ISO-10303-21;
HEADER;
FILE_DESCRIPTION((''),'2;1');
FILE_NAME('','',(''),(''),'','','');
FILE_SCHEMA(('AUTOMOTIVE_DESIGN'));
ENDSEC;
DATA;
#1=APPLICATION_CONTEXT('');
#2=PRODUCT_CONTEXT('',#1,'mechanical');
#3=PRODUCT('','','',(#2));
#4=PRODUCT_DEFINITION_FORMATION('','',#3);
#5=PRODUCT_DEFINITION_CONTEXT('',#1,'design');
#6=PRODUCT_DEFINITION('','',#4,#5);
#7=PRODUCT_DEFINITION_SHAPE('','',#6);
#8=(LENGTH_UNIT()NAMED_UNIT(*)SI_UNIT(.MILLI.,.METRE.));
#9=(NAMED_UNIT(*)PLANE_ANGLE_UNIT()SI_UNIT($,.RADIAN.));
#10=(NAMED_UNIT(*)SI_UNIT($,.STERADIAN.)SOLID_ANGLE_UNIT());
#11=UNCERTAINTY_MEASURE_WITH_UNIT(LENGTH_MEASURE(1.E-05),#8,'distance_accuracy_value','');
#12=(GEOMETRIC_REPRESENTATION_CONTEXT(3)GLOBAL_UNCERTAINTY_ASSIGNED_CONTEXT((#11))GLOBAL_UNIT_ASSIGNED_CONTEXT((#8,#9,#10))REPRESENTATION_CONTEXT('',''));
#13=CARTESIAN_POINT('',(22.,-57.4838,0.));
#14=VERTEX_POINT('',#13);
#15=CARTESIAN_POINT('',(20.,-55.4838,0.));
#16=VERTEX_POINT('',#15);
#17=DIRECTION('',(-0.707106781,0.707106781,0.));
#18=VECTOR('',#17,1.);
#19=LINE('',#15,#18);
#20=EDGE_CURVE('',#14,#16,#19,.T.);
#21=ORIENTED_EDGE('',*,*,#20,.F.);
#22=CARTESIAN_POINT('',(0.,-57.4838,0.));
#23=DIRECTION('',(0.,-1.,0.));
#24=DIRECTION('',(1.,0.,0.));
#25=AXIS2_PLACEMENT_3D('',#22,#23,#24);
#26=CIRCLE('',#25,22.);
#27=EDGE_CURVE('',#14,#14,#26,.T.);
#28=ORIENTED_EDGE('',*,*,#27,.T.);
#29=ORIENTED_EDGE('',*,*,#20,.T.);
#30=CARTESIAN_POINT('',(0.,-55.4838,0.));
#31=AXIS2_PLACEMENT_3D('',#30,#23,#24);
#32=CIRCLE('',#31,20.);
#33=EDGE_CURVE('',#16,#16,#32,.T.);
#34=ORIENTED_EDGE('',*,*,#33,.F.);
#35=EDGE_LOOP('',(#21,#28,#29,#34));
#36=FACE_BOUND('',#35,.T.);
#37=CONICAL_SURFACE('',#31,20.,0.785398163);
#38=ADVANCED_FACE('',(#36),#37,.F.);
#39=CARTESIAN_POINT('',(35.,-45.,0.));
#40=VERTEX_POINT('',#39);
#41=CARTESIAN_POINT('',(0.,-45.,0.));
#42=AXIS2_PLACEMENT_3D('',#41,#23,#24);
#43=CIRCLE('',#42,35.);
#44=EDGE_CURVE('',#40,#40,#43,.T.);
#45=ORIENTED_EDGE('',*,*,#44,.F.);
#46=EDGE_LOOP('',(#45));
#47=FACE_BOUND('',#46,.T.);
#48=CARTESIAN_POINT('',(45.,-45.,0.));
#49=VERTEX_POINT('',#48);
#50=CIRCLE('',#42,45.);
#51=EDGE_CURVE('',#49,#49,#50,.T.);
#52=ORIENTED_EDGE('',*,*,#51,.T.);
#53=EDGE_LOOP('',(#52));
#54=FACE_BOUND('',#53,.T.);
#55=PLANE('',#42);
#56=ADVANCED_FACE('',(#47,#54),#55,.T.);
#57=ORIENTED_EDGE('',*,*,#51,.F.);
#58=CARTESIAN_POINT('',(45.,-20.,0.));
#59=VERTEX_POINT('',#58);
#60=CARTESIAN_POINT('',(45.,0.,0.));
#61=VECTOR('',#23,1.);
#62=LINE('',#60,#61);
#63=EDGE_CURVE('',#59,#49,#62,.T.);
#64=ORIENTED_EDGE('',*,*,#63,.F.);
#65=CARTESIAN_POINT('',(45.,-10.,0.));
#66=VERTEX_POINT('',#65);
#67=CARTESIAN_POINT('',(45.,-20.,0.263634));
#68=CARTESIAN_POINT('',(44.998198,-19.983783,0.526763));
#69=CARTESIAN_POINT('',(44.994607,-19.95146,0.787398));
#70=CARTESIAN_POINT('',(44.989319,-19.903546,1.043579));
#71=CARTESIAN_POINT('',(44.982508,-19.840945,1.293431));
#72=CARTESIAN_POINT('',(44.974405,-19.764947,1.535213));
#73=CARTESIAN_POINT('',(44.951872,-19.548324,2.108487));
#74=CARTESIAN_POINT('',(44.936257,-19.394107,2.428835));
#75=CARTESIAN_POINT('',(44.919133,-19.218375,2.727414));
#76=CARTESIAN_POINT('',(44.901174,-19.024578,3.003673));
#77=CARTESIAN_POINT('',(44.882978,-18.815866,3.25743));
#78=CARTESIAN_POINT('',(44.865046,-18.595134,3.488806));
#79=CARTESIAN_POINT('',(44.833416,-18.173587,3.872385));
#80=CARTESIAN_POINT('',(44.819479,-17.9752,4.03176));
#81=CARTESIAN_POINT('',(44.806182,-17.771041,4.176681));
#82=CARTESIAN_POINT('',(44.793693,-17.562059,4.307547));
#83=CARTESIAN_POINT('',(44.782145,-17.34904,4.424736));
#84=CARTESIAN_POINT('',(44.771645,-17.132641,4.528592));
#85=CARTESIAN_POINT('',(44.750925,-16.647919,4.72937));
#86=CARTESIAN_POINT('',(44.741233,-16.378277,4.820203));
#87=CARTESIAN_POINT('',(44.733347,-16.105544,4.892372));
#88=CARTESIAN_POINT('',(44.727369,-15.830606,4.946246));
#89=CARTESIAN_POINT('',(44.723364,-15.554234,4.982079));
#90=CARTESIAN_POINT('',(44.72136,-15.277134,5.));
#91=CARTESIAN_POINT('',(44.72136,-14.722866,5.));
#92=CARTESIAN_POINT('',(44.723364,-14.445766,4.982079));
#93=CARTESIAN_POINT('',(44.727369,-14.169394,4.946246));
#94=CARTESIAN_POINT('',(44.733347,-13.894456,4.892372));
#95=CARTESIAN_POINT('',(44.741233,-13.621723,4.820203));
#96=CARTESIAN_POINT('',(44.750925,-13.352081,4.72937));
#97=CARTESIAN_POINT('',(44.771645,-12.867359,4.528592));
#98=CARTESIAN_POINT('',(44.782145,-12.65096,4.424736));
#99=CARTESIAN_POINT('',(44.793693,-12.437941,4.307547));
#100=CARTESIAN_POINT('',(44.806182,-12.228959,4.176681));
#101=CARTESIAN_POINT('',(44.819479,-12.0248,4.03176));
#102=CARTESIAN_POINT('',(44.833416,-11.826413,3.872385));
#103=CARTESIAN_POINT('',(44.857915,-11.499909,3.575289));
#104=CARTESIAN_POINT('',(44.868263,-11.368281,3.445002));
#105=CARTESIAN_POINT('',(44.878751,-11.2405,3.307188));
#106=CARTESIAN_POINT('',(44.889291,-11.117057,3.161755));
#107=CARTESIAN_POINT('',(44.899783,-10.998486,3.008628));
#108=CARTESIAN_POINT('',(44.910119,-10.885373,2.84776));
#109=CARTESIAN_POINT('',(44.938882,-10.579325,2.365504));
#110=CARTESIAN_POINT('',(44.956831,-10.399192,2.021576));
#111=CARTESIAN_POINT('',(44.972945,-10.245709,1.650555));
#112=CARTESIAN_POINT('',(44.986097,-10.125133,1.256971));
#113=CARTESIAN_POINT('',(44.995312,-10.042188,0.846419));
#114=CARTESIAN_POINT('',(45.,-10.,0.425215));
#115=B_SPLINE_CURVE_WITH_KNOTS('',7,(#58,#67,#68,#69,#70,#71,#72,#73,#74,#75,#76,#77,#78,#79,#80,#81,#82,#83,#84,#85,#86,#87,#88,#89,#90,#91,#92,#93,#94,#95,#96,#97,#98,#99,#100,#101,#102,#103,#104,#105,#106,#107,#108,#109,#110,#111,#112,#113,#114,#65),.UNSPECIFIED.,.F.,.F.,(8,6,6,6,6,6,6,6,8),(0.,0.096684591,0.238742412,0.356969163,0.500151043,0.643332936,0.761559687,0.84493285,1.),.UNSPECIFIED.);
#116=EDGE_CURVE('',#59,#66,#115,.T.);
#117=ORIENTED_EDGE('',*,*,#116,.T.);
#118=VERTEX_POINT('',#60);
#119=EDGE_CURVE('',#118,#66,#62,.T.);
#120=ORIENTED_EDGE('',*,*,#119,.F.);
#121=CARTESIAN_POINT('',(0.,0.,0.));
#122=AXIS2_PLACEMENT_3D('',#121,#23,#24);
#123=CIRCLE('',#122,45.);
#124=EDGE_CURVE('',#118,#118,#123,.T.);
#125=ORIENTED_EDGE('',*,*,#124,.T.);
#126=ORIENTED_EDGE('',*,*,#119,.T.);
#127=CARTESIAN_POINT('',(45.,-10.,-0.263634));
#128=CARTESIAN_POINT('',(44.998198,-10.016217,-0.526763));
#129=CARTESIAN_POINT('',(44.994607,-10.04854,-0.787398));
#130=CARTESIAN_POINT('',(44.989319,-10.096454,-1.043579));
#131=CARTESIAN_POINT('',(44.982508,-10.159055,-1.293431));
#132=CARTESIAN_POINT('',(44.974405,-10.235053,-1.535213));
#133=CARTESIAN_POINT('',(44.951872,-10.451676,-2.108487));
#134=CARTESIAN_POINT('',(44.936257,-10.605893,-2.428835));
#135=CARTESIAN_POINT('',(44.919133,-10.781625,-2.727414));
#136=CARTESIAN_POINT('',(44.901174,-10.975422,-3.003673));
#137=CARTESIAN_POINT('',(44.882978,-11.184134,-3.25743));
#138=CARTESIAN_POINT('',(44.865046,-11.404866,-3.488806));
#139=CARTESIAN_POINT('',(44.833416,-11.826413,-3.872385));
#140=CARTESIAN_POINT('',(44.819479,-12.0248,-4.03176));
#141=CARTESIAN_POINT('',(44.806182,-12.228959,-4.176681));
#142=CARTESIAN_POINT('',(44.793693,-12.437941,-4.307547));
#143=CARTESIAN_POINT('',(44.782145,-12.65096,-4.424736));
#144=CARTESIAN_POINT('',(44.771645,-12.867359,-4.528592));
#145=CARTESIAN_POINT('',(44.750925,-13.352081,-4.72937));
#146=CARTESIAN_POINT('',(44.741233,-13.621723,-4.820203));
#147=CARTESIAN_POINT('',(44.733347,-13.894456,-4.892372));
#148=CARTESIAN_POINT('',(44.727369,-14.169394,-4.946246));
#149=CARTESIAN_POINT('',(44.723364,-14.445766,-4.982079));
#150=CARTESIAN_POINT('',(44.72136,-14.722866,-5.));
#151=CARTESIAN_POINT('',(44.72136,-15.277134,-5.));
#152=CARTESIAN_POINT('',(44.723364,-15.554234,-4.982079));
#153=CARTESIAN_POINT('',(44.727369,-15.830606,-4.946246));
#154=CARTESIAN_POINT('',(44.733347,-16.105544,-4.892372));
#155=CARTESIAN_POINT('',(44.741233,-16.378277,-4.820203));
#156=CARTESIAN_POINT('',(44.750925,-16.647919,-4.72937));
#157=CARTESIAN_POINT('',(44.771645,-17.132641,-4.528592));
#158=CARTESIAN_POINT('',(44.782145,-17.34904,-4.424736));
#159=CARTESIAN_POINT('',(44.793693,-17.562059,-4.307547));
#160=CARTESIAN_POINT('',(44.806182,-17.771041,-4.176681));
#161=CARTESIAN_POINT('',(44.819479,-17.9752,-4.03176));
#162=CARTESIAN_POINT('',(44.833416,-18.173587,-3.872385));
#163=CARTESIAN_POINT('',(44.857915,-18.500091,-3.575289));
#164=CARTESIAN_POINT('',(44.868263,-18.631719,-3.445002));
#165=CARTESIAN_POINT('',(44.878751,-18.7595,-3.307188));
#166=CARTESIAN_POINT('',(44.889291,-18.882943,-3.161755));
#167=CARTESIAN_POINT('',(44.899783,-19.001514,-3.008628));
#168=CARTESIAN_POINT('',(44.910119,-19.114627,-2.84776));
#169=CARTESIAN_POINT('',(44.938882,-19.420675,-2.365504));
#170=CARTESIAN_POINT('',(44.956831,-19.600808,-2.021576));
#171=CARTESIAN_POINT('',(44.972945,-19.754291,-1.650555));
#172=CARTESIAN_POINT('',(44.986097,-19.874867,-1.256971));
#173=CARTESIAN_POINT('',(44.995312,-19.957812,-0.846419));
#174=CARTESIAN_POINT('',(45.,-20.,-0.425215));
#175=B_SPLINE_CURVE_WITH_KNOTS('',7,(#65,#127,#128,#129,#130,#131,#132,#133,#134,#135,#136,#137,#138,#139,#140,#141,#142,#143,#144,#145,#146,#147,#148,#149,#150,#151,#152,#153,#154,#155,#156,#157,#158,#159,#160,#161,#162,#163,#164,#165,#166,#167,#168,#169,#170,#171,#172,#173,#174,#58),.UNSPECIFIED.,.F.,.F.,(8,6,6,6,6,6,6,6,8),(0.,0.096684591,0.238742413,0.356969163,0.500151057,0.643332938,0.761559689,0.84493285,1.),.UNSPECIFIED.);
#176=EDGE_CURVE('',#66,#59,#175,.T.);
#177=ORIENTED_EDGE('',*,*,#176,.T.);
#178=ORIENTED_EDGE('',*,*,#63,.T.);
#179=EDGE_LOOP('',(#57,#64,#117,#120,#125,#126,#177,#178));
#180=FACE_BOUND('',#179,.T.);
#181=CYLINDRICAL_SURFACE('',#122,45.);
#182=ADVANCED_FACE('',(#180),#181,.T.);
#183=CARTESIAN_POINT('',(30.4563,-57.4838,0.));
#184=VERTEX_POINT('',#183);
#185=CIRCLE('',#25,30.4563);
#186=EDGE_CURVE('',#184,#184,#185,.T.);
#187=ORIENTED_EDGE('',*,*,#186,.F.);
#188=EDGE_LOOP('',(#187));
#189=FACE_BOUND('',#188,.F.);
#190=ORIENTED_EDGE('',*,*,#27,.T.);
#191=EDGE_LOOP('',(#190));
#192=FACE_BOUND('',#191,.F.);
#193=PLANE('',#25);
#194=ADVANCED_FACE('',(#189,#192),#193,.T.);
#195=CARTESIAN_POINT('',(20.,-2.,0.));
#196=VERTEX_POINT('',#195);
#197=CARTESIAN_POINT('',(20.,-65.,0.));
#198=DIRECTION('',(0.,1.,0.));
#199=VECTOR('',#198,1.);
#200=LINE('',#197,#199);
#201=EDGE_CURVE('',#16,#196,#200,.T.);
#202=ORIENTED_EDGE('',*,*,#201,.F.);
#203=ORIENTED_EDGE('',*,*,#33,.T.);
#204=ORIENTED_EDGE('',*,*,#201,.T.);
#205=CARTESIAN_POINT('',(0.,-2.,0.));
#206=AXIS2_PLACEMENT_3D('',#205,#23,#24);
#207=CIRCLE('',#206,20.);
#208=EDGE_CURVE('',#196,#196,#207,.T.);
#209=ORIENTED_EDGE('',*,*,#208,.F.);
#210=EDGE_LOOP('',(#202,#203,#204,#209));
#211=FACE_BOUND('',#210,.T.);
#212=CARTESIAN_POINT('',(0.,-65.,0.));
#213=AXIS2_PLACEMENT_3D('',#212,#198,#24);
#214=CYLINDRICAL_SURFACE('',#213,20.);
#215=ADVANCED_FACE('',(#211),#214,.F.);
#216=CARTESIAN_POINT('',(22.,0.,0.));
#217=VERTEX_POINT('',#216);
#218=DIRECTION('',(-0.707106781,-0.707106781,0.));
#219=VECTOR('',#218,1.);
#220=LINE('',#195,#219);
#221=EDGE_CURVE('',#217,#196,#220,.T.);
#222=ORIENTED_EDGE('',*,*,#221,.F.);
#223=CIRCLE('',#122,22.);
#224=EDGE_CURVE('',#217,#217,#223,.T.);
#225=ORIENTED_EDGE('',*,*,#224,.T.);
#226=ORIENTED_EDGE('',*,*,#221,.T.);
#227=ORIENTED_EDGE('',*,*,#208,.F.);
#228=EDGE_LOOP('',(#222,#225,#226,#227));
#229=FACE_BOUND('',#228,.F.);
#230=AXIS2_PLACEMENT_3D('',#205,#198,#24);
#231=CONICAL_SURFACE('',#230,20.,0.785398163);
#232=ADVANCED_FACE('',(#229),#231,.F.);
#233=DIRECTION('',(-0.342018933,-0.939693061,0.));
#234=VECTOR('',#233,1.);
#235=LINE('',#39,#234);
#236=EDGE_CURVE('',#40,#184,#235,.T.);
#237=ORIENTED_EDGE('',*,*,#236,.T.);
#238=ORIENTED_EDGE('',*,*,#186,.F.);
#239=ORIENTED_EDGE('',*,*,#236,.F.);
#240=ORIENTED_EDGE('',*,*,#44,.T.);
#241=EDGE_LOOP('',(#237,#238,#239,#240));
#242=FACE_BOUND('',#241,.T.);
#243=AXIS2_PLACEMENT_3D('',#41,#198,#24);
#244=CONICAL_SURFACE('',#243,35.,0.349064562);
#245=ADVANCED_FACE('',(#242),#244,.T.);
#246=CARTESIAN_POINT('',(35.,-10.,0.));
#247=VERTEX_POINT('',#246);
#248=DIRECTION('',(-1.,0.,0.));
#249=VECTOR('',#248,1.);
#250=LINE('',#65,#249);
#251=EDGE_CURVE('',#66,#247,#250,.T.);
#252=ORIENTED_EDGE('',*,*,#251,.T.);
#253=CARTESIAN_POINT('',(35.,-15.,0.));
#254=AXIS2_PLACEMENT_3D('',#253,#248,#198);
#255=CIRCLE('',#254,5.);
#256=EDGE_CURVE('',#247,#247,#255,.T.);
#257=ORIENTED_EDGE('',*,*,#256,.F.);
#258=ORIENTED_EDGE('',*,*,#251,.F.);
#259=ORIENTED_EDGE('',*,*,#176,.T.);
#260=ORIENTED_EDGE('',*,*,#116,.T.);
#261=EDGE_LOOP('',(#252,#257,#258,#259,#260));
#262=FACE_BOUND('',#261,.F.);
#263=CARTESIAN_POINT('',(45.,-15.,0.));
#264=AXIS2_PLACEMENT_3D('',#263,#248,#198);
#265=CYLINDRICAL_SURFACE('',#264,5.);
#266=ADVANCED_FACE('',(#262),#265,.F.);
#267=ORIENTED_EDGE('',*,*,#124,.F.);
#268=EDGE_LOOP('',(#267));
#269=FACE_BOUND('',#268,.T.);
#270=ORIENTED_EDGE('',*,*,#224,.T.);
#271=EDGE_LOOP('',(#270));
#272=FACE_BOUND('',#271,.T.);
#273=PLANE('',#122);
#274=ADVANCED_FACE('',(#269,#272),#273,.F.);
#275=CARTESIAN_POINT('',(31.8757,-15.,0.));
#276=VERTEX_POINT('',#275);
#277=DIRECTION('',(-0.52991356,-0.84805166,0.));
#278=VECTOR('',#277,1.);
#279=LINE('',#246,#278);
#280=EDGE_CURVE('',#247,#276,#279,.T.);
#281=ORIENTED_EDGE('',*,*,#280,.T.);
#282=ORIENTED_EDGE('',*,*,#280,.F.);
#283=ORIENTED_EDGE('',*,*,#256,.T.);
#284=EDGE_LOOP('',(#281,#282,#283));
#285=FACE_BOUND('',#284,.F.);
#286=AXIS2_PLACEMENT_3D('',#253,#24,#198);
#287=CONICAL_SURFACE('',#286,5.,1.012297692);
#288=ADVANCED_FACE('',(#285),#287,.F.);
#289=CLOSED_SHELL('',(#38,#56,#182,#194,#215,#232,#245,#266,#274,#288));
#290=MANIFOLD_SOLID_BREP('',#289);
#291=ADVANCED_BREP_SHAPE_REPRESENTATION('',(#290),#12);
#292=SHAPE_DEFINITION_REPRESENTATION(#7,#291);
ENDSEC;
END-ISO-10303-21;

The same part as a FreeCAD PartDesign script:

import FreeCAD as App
import Part
import Sketcher

V = App.Vector
Q = App.Units.Quantity


def edges_at(feature, points):
    """Names of the edges that pass closest to the given points."""
    edges = feature.Shape.Edges
    near = lambda p: min(range(len(edges)), key=lambda i: edges[i].distToShape(Part.Vertex(*p))[0])
    return sorted({f"Edge{near(p) + 1}" for p in points})


def add_polygon(sketch, points):
    """Adds a closed chain of lines whose ends are joined by coincident constraints."""
    first, n = sketch.GeometryCount, len(points)
    for a, b in zip(points, points[1:] + points[:1]):
        sketch.addGeometry(Part.LineSegment(App.Vector(*a, 0), App.Vector(*b, 0)), False)
    for i in range(n):
        sketch.addConstraint(Sketcher.Constraint("Coincident", first + i, 2, first + (i + 1) % n, 1))

doc = App.newDocument("Part")
params = doc.addObject("Spreadsheet::Sheet", "Params")
for row, (alias, value) in enumerate([
    ("sketch1_width", "10 mm"),
    ("sketch1_height", "45 mm"),
    ("revolution_angle", "360 deg"),
    ("chamfer_size", "2 mm"),
    ("sketch2_width", "10 mm"),
    ("sketch2_height", "5 mm"),
    ("groove_angle", "360 deg"),
], start=1):
    params.set(f"A{row}", alias)
    params.set(f"B{row}", "=" + value)
    params.setAlias(f"B{row}", alias)

body = doc.addObject("PartDesign::Body", "Body")

# Sketch on XY plane
sketch1 = body.newObject("Sketcher::SketchObject", "Sketch")
sketch1.AttachmentSupport = (doc.getObject("XY_Plane"), [""])
sketch1.MapMode = "FlatFace"
add_polygon(sketch1, [(45, 0), (20, 0), (20, -57.4838), (30.456288, -57.483796), (35, -45), (45, -45)])  # lines 0-5
sketch1.addConstraint([
    Sketcher.Constraint("Horizontal", 0),
    Sketcher.Constraint("Vertical", 1),
    Sketcher.Constraint("Horizontal", 2),
    Sketcher.Constraint("Horizontal", 4),
    Sketcher.Constraint("Vertical", 5),
    Sketcher.Constraint("PointOnObject", 0, 2, -1),
    Sketcher.Constraint("DistanceX", 4, 1, 4, 2, Q("10 mm")),
    Sketcher.Constraint("DistanceY", 5, 1, 5, 2, Q("45 mm")),
    Sketcher.Constraint("DistanceX", -1, 1, 0, 2, Q("20 mm")),
    Sketcher.Constraint("DistanceX", -1, 1, 4, 2, Q("45 mm")),
    Sketcher.Constraint("Angle", 3, Q("70 deg")),
    Sketcher.Constraint("Distance", 3, Q("13.285 mm")),
])
sketch1.setExpression("Constraints[12]", "Params.sketch1_width")
sketch1.setExpression("Constraints[13]", "Params.sketch1_height")
revolution = body.newObject("PartDesign::Revolution", "Revolution")
revolution.Profile = sketch1
revolution.ReferenceAxis = (sketch1, ["V_Axis"])
revolution.setExpression("Angle", "Params.revolution_angle")
doc.recompute()

chamfer = body.newObject("PartDesign::Chamfer", "Chamfer")
chamfer.Base = (revolution, edges_at(revolution, [(-20, 0, 0), (-20, -57.484, 0)]))
chamfer.setExpression("Size", "Params.chamfer_size")

# Sketch on XY plane
sketch2 = body.newObject("Sketcher::SketchObject", "Sketch001")
sketch2.AttachmentSupport = (doc.getObject("XY_Plane"), [""])
sketch2.MapMode = "FlatFace"
add_polygon(sketch2, [(45, -15), (45, -10), (35, -10), (31.8757, -15)])  # lines 0-3
sketch2.addGeometry(Part.LineSegment(V(45, -15, 0), V(31.8757, -15, 0)), True)  # axis
sketch2.addConstraint([
    Sketcher.Constraint("Vertical", 0),
    Sketcher.Constraint("Horizontal", 1),
    Sketcher.Constraint("Horizontal", 3),
    Sketcher.Constraint("Horizontal", 4),
    Sketcher.Constraint("Coincident", 4, 1, 3, 2),
    Sketcher.Constraint("Equal", 3, 4),
    Sketcher.Constraint("DistanceX", 1, 2, 1, 1, Q("10 mm")),
    Sketcher.Constraint("DistanceY", 0, 1, 0, 2, Q("5 mm")),
    Sketcher.Constraint("DistanceY", 0, 2, -1, 1, Q("10 mm")),
    Sketcher.Constraint("Angle", 2, Q("-121.9996 deg")),
    Sketcher.Constraint("DistanceX", -1, 1, 0, 2, Q("45 mm")),
])
sketch2.setExpression("Constraints[10]", "Params.sketch2_width")
sketch2.setExpression("Constraints[11]", "Params.sketch2_height")
groove = body.newObject("PartDesign::Groove", "Groove")
groove.Profile = sketch2
groove.ReferenceAxis = (sketch2, ["Axis0"])
groove.setExpression("Angle", "Params.groove_angle")

doc.recompute()
